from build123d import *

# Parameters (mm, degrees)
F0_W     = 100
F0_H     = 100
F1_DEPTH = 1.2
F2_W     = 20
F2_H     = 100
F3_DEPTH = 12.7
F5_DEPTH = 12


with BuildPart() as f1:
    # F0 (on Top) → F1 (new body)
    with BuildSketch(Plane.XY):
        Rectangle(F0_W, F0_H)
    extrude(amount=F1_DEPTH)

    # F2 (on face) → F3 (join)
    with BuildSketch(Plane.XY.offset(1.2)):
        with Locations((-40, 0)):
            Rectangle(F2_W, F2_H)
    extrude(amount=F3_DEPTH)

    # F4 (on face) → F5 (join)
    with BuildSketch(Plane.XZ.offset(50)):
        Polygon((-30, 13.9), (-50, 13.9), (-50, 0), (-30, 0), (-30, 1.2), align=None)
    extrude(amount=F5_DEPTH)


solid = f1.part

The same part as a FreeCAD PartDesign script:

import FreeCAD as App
import Part
import Sketcher

V = App.Vector

doc = App.newDocument("Part")
params = doc.addObject("Spreadsheet::Sheet", "Params")
for row, (alias, value) in enumerate([
    ("sketch1_width", "100 mm"),
    ("pad1_length", "1.2 mm"),
    ("sketch2_width", "20 mm"),
    ("sketch2_height", "100 mm"),
    ("pad2_length", "12.7 mm"),
    ("sketch3_width", "20 mm"),
    ("sketch3_height", "13.9 mm"),
    ("pad3_length", "12 mm"),
], start=1):
    params.set(f"A{row}", alias)
    params.set(f"B{row}", "=" + value)
    params.setAlias(f"B{row}", alias)

body = doc.addObject("PartDesign::Body", "Body")

# Sketch on XY plane
sketch1 = body.newObject("Sketcher::SketchObject", "Sketch")
sketch1.AttachmentSupport = (doc.getObject("XY_Plane"), [""])
sketch1.MapMode = "FlatFace"
sketch1.addGeometry(Part.LineSegment(V(-50, 50, 0), V(-50, -50, 0)), False)
sketch1.addGeometry(Part.LineSegment(V(-50, -50, 0), V(50, -50, 0)), False)
sketch1.addGeometry(Part.LineSegment(V(50, -50, 0), V(50, 50, 0)), False)
sketch1.addGeometry(Part.LineSegment(V(50, 50, 0), V(-50, 50, 0)), False)
sketch1.addConstraint(Sketcher.Constraint("Coincident", 0, 2, 1, 1))
sketch1.addConstraint(Sketcher.Constraint("Coincident", 1, 2, 2, 1))
sketch1.addConstraint(Sketcher.Constraint("Coincident", 2, 2, 3, 1))
sketch1.addConstraint(Sketcher.Constraint("Coincident", 3, 2, 0, 1))
sketch1.addConstraint(Sketcher.Constraint("Vertical", 0))
sketch1.addConstraint(Sketcher.Constraint("Horizontal", 1))
sketch1.addConstraint(Sketcher.Constraint("Vertical", 2))
sketch1.addConstraint(Sketcher.Constraint("Horizontal", 3))
sketch1.addConstraint(Sketcher.Constraint("Symmetric", 0, 2, 2, 2, -1, 1))
sketch1.addConstraint(Sketcher.Constraint("Equal", 3, 0))
sketch1.addConstraint(Sketcher.Constraint("DistanceX", 1, 1, 1, 2, 100.0))
sketch1.setExpression("Constraints[10]", "Params.sketch1_width")
pad1 = body.newObject("PartDesign::Pad", "Pad")
pad1.Profile = sketch1
pad1.setExpression("Length", "Params.pad1_length")

# Sketch on XY plane
sketch2 = body.newObject("Sketcher::SketchObject", "Sketch001")
sketch2.AttachmentSupport = (doc.getObject("XY_Plane"), [""])
sketch2.MapMode = "FlatFace"
sketch2.AttachmentOffset = App.Placement(V(0, 0, 1.2), App.Rotation())
sketch2.addGeometry(Part.LineSegment(V(-50, 50, 0), V(-50, -50, 0)), False)
sketch2.addGeometry(Part.LineSegment(V(-50, -50, 0), V(-30, -50, 0)), False)
sketch2.addGeometry(Part.LineSegment(V(-30, -50, 0), V(-30, 50, 0)), False)
sketch2.addGeometry(Part.LineSegment(V(-30, 50, 0), V(-50, 50, 0)), False)
sketch2.addConstraint(Sketcher.Constraint("Coincident", 0, 2, 1, 1))
sketch2.addConstraint(Sketcher.Constraint("Coincident", 1, 2, 2, 1))
sketch2.addConstraint(Sketcher.Constraint("Coincident", 2, 2, 3, 1))
sketch2.addConstraint(Sketcher.Constraint("Coincident", 3, 2, 0, 1))
sketch2.addConstraint(Sketcher.Constraint("Vertical", 0))
sketch2.addConstraint(Sketcher.Constraint("Horizontal", 1))
sketch2.addConstraint(Sketcher.Constraint("Vertical", 2))
sketch2.addConstraint(Sketcher.Constraint("Horizontal", 3))
sketch2.addConstraint(Sketcher.Constraint("DistanceX", 1, 1, 1, 2, 20.0))
sketch2.addConstraint(Sketcher.Constraint("DistanceY", 0, 2, 0, 1, 100.0))
sketch2.addConstraint(Sketcher.Constraint("DistanceX", 0, 2, -1, 1, 50.0))
sketch2.addConstraint(Sketcher.Constraint("DistanceY", 0, 2, -1, 1, 50.0))
sketch2.setExpression("Constraints[8]", "Params.sketch2_width")
sketch2.setExpression("Constraints[9]", "Params.sketch2_height")
pad2 = body.newObject("PartDesign::Pad", "Pad001")
pad2.Profile = sketch2
pad2.setExpression("Length", "Params.pad2_length")

# Sketch on XZ plane
sketch3 = body.newObject("Sketcher::SketchObject", "Sketch002")
sketch3.AttachmentSupport = (doc.getObject("XZ_Plane"), [""])
sketch3.MapMode = "FlatFace"
sketch3.AttachmentOffset = App.Placement(V(0, 0, 50), App.Rotation())
sketch3.addGeometry(Part.LineSegment(V(-30, 14, 0), V(-50, 14, 0)), False)
sketch3.addGeometry(Part.LineSegment(V(-50, 14, 0), V(-50, 0, 0)), False)
sketch3.addGeometry(Part.LineSegment(V(-50, 0, 0), V(-30, 0, 0)), False)
sketch3.addGeometry(Part.LineSegment(V(-30, 0, 0), V(-30, 14, 0)), False)
sketch3.addConstraint(Sketcher.Constraint("Coincident", 0, 2, 1, 1))
sketch3.addConstraint(Sketcher.Constraint("Coincident", 1, 2, 2, 1))
sketch3.addConstraint(Sketcher.Constraint("Coincident", 2, 2, 3, 1))
sketch3.addConstraint(Sketcher.Constraint("Coincident", 3, 2, 0, 1))
sketch3.addConstraint(Sketcher.Constraint("Horizontal", 0))
sketch3.addConstraint(Sketcher.Constraint("Vertical", 1))
sketch3.addConstraint(Sketcher.Constraint("Horizontal", 2))
sketch3.addConstraint(Sketcher.Constraint("Vertical", 3))
sketch3.addConstraint(Sketcher.Constraint("PointOnObject", 1, 2, -1))
sketch3.addConstraint(Sketcher.Constraint("DistanceX", 0, 2, 0, 1, 20.0))
sketch3.addConstraint(Sketcher.Constraint("DistanceY", 1, 2, 1, 1, 13.9))
sketch3.addConstraint(Sketcher.Constraint("DistanceX", 0, 2, -1, 1, 50.0))
sketch3.setExpression("Constraints[9]", "Params.sketch3_width")
sketch3.setExpression("Constraints[10]", "Params.sketch3_height")
pad3 = body.newObject("PartDesign::Pad", "Pad002")
pad3.Profile = sketch3
pad3.setExpression("Length", "Params.pad3_length")

doc.recompute()
